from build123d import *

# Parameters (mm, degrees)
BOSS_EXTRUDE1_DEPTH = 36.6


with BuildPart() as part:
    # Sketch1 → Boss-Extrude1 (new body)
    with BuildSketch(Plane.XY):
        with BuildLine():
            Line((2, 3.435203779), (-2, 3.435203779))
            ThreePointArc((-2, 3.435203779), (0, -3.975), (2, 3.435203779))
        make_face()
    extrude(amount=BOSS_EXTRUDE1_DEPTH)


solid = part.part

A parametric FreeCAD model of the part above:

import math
import FreeCAD as App
import Part
import Sketcher

V = App.Vector
Q = App.Units.Quantity

doc = App.newDocument("Part")
params = doc.addObject("Spreadsheet::Sheet", "Params")
for row, (alias, value) in enumerate([
    ("sketch1_width", "4 mm"),
    ("pad1_length", "36.6 mm"),
], start=1):
    params.set(f"A{row}", alias)
    params.set(f"B{row}", "=" + value)
    params.setAlias(f"B{row}", alias)

body = doc.addObject("PartDesign::Body", "Body")

# Sketch on XY plane
sketch1 = body.newObject("Sketcher::SketchObject", "Sketch")
sketch1.AttachmentSupport = (doc.getObject("XY_Plane"), [""])
sketch1.MapMode = "FlatFace"
sketch1.addGeometry([
    Part.LineSegment(V(2, 3.435204, 0), V(-2, 3.435204, 0)),
    Part.ArcOfCircle(Part.Circle(V(0, 0, 0), V(0, 0, 1), 3.975), math.radians(120.208268), math.radians(419.791732)),
], False)
sketch1.addConstraint([
    Sketcher.Constraint("Coincident", 0, 1, 1, 2),
    Sketcher.Constraint("Coincident", 1, 1, 0, 2),
    Sketcher.Constraint("Horizontal", 0),
    Sketcher.Constraint("Coincident", 1, 3, -1, 1),
    Sketcher.Constraint("DistanceX", 0, 2, 0, 1, Q("4 mm")),
    Sketcher.Constraint("Radius", 1, Q("3.975 mm")),
])
sketch1.setExpression("Constraints[4]", "Params.sketch1_width")
pad1 = body.newObject("PartDesign::Pad", "Pad")
pad1.Profile = sketch1
pad1.setExpression("Length", "Params.pad1_length")

doc.recompute()
